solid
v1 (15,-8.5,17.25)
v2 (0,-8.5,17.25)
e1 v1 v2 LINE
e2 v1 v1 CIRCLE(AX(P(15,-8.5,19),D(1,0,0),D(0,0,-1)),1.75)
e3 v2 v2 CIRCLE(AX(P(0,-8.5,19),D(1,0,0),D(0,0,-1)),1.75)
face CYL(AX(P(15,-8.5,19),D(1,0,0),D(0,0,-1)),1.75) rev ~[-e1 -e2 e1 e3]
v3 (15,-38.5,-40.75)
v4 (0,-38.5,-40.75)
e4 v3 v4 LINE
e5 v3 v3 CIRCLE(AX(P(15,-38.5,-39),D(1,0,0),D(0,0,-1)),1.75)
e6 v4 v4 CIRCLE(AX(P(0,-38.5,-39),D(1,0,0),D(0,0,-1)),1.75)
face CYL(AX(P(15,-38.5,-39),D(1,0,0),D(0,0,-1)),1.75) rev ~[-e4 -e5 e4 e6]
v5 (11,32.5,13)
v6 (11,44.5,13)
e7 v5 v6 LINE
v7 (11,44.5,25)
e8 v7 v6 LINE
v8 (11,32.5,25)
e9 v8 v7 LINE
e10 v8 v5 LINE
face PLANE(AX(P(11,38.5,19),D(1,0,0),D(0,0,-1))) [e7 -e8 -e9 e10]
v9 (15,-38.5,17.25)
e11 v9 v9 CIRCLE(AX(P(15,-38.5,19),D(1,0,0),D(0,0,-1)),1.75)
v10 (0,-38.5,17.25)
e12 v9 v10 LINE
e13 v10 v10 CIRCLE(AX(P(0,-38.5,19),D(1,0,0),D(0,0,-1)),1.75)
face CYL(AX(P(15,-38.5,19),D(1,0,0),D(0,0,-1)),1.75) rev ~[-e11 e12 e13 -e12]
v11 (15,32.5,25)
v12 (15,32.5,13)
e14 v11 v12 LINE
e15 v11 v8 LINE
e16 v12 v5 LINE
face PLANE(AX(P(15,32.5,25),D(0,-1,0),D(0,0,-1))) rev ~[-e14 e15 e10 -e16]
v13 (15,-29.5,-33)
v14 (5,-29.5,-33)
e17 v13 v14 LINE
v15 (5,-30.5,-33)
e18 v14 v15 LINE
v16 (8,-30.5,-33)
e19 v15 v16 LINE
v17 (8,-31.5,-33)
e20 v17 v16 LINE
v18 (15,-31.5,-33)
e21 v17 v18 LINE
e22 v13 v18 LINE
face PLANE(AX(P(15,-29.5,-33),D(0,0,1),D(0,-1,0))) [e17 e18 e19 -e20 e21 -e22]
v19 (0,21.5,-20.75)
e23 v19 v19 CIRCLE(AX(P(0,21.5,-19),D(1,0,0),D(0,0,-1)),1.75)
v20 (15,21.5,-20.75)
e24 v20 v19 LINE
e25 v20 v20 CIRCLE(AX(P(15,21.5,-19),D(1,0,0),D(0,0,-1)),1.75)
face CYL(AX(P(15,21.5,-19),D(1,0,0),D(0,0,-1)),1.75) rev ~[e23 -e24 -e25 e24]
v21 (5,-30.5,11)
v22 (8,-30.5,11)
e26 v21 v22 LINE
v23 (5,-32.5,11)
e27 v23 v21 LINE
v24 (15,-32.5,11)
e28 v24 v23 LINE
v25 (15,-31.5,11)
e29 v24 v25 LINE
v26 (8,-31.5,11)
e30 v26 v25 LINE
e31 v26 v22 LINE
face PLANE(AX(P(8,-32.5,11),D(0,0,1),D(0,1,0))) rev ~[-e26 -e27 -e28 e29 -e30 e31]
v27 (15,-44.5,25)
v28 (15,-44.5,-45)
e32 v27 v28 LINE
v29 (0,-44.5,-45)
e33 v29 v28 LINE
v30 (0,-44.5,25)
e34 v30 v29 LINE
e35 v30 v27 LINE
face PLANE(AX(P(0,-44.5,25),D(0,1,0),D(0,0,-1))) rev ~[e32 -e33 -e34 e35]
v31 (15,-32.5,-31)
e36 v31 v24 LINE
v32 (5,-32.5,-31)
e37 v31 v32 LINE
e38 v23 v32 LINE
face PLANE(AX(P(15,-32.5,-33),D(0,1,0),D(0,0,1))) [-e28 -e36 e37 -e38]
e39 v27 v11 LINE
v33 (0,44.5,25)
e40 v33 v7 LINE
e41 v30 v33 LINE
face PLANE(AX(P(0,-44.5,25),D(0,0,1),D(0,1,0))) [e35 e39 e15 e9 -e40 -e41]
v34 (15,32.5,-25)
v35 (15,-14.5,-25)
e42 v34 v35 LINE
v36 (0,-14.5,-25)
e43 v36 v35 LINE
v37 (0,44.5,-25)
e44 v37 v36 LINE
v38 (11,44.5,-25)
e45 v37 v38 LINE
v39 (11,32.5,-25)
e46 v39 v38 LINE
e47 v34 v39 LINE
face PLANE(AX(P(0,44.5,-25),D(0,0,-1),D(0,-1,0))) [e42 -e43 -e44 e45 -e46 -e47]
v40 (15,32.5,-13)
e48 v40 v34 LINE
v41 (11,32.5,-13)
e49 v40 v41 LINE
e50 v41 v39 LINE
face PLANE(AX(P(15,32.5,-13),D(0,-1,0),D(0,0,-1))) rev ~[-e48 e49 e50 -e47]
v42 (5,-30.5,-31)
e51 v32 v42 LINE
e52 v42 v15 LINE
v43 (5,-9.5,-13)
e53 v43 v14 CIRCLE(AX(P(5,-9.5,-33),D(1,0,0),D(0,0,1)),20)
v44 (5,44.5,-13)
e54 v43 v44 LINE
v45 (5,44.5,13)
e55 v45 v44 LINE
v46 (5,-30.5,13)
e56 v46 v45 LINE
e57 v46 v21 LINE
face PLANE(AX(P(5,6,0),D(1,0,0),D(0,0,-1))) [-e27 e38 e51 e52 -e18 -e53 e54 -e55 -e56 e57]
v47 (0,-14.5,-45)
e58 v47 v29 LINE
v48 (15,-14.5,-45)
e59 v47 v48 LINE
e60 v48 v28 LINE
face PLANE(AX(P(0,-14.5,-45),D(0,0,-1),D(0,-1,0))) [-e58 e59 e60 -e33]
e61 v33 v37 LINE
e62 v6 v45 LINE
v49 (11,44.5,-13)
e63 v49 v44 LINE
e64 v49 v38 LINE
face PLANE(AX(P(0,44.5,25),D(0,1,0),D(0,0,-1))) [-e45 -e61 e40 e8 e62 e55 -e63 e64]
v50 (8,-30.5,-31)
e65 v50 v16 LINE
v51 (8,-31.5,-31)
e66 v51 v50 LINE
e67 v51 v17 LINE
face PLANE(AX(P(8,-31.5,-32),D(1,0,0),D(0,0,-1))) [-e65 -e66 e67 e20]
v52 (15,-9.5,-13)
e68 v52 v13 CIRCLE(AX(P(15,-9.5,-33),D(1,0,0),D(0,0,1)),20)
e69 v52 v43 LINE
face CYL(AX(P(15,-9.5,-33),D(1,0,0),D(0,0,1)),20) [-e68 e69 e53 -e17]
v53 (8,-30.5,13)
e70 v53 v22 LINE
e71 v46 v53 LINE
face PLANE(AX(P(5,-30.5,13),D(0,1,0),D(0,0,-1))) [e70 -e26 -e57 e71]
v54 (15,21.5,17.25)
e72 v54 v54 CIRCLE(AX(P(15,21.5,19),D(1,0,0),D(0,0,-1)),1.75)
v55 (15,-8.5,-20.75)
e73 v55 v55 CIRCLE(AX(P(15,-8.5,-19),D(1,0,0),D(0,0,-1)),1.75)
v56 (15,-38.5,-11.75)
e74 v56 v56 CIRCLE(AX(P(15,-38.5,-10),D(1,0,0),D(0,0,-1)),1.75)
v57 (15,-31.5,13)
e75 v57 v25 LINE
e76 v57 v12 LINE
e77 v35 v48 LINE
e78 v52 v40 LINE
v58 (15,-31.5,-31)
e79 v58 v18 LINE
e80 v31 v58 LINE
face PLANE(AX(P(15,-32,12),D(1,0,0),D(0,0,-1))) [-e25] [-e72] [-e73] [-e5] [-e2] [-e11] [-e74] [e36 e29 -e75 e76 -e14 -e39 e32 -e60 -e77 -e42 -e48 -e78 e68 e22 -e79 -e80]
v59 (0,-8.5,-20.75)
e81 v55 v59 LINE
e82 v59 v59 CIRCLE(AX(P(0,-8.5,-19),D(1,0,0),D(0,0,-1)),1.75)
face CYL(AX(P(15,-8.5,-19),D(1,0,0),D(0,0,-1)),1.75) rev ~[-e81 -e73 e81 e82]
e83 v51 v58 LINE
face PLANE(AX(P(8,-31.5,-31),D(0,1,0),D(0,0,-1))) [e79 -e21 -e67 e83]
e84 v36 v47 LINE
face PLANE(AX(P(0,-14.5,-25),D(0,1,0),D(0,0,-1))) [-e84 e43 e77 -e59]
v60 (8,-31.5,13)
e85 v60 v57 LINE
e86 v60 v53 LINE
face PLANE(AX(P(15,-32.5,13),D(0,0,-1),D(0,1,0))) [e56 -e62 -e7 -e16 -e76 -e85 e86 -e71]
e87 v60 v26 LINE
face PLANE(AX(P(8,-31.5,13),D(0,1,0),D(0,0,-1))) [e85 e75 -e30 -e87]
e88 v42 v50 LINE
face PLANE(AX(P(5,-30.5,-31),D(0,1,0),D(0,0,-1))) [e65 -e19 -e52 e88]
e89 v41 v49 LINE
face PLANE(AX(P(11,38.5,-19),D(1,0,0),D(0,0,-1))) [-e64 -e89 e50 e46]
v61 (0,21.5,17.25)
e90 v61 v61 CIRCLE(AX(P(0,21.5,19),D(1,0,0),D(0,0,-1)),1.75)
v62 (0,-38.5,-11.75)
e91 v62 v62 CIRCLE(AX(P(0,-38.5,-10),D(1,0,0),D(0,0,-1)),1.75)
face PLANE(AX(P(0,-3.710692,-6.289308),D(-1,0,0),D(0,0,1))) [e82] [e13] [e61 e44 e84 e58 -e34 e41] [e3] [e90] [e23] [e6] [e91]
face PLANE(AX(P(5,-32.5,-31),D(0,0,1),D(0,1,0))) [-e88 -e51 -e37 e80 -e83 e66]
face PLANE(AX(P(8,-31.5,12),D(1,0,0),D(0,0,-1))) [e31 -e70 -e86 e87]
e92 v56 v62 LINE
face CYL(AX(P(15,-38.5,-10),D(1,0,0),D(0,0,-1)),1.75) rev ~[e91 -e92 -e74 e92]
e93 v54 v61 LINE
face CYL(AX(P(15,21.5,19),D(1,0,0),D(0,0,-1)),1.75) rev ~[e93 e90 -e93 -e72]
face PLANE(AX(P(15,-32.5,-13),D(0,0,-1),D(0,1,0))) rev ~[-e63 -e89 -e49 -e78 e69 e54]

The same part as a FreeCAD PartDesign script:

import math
import FreeCAD as App
import Part
import Sketcher
from FreeCAD import Vector

doc = App.newDocument("Part")
body = doc.addObject("PartDesign::Body", "Body")

sketch1 = body.newObject("Sketcher::SketchObject", "Sketch")
sketch1.AttachmentSupport = (doc.getObject("YZ_Plane"), [""])
sketch1.MapMode = "FlatFace"
sketch1.addGeometry(Part.LineSegment(Vector(-14, -25, 0), Vector(44, -25, 0)), False)
sketch1.addGeometry(Part.LineSegment(Vector(44, -25, 0), Vector(44, 25, 0)), False)
sketch1.addGeometry(Part.LineSegment(Vector(44, 25, 0), Vector(-44, 25, 0)), False)
sketch1.addGeometry(Part.LineSegment(Vector(-44, 25, 0), Vector(-44, -45, 0)), False)
sketch1.addGeometry(Part.LineSegment(Vector(-44, -45, 0), Vector(-14, -45, 0)), False)
sketch1.addGeometry(Part.LineSegment(Vector(-14, -45, 0), Vector(-14, -25, 0)), False)
sketch1.addConstraint(Sketcher.Constraint("Coincident", 0, 2, 1, 1))
sketch1.addConstraint(Sketcher.Constraint("Coincident", 1, 2, 2, 1))
sketch1.addConstraint(Sketcher.Constraint("Coincident", 2, 2, 3, 1))
sketch1.addConstraint(Sketcher.Constraint("Coincident", 3, 2, 4, 1))
sketch1.addConstraint(Sketcher.Constraint("Coincident", 4, 2, 5, 1))
sketch1.addConstraint(Sketcher.Constraint("Coincident", 5, 2, 0, 1))
sketch1.addConstraint(Sketcher.Constraint("Horizontal", 0))
sketch1.addConstraint(Sketcher.Constraint("Vertical", 1))
sketch1.addConstraint(Sketcher.Constraint("Horizontal", 2))
sketch1.addConstraint(Sketcher.Constraint("Vertical", 3))
sketch1.addConstraint(Sketcher.Constraint("Horizontal", 4))
sketch1.addConstraint(Sketcher.Constraint("Vertical", 5))
sketch1.addConstraint(Sketcher.Constraint("Symmetric", 0, 2, 2, 2, -1, 1))
sketch1.addConstraint(Sketcher.Constraint("DistanceX", 0, 1, 0, 2, 59.0))
sketch1.addConstraint(Sketcher.Constraint("DistanceX", 2, 2, 2, 1, 89.0))
sketch1.addConstraint(Sketcher.Constraint("DistanceY", 1, 1, 1, 2, 50.0))
sketch1.addConstraint(Sketcher.Constraint("DistanceY", 3, 2, 3, 1, 70.0))
pad1 = body.newObject("PartDesign::Pad", "Pad")
pad1.Profile = sketch1
pad1.Length = 15

sketch2 = body.newObject("Sketcher::SketchObject", "Sketch001")
sketch2.AttachmentSupport = (doc.getObject("YZ_Plane"), [""])
sketch2.MapMode = "FlatFace"
sketch2.AttachmentOffset = App.Placement(Vector(0, 0, 15), App.Rotation())
sketch2.addGeometry(Part.LineSegment(Vector(44, 13, 0), Vector(-32, 13, 0)), False)
sketch2.addGeometry(Part.LineSegment(Vector(-32, 13, 0), Vector(-32, -13, 0)), False)
sketch2.addGeometry(Part.LineSegment(Vector(-32, -13, 0), Vector(44, -13, 0)), False)
sketch2.addGeometry(Part.LineSegment(Vector(44, -13, 0), Vector(44, 13, 0)), False)
sketch2.addConstraint(Sketcher.Constraint("Coincident", 0, 2, 1, 1))
sketch2.addConstraint(Sketcher.Constraint("Coincident", 1, 2, 2, 1))
sketch2.addConstraint(Sketcher.Constraint("Coincident", 2, 2, 3, 1))
sketch2.addConstraint(Sketcher.Constraint("Coincident", 3, 2, 0, 1))
sketch2.addConstraint(Sketcher.Constraint("Horizontal", 0))
sketch2.addConstraint(Sketcher.Constraint("Vertical", 1))
sketch2.addConstraint(Sketcher.Constraint("Horizontal", 2))
sketch2.addConstraint(Sketcher.Constraint("Vertical", 3))
sketch2.addConstraint(Sketcher.Constraint("DistanceX", 0, 2, 0, 1, 77.0))
sketch2.addConstraint(Sketcher.Constraint("DistanceY", 1, 2, 1, 1, 26.0))
sketch2.addConstraint(Sketcher.Constraint("DistanceY", -1, 1, 0, 2, 13.0))
sketch2.addConstraint(Sketcher.Constraint("DistanceX", 0, 2, -1, 1, 32.5))
pocket1 = body.newObject("PartDesign::Pocket", "Pocket")
pocket1.Profile = sketch2
pocket1.Length = 10

sketch3 = body.newObject("Sketcher::SketchObject", "Sketch002")
sketch3.AttachmentSupport = (doc.getObject("YZ_Plane"), [""])
sketch3.MapMode = "FlatFace"
sketch3.AttachmentOffset = App.Placement(Vector(0, 0, 15), App.Rotation())
sketch3.addGeometry(Part.LineSegment(Vector(-9.5, -13, 0), Vector(-32.5, -13, 0)), False)
sketch3.addGeometry(Part.LineSegment(Vector(-32.5, -13, 0), Vector(-32.5, -33, 0)), False)
sketch3.addGeometry(Part.LineSegment(Vector(-32.5, -33, 0), Vector(-29.5, -33, 0)), False)
sketch3.addGeometry(Part.ArcOfCircle(Part.Circle(Vector(-9.5, -33, 0), Vector(0, 0, 1), 20), math.radians(90), math.radians(180)), False)
sketch3.addConstraint(Sketcher.Constraint("Coincident", 0, 2, 1, 1))
sketch3.addConstraint(Sketcher.Constraint("Coincident", 1, 2, 2, 1))
sketch3.addConstraint(Sketcher.Constraint("Coincident", 2, 2, 3, 2))
sketch3.addConstraint(Sketcher.Constraint("Tangent", 3, 1, 0, 1))
sketch3.addConstraint(Sketcher.Constraint("Horizontal", 0))
sketch3.addConstraint(Sketcher.Constraint("Vertical", 1))
sketch3.addConstraint(Sketcher.Constraint("Horizontal", 2))
sketch3.addConstraint(Sketcher.Constraint("Horizontal", 3, 3, 1, 2))
sketch3.addConstraint(Sketcher.Constraint("Radius", 3, 20.0))
sketch3.addConstraint(Sketcher.Constraint("DistanceX", 0, 2, 0, 1, 23.0))
sketch3.addConstraint(Sketcher.Constraint("DistanceY", 3, 3, -1, 1, 33.0))
sketch3.addConstraint(Sketcher.Constraint("DistanceX", 3, 3, -1, 1, 9.5))
pocket2 = body.newObject("PartDesign::Pocket", "Pocket001")
pocket2.Profile = sketch3
pocket2.Length = 10

sketch4 = body.newObject("Sketcher::SketchObject", "Sketch003")
sketch4.AttachmentSupport = (doc.getObject("YZ_Plane"), [""])
sketch4.MapMode = "FlatFace"
sketch4.AttachmentOffset = App.Placement(Vector(0, 0, 15), App.Rotation())
sketch4.addGeometry(Part.LineSegment(Vector(44, 25, 0), Vector(32, 25, 0)), False)
sketch4.addGeometry(Part.LineSegment(Vector(32, 25, 0), Vector(32, 13, 0)), False)
sketch4.addGeometry(Part.LineSegment(Vector(32, 13, 0), Vector(44, 13, 0)), False)
sketch4.addGeometry(Part.LineSegment(Vector(44, 13, 0), Vector(44, 25, 0)), False)
sketch4.addGeometry(Part.LineSegment(Vector(44, -13, 0), Vector(32, -13, 0)), False)
sketch4.addGeometry(Part.LineSegment(Vector(32, -13, 0), Vector(32, -25, 0)), False)
sketch4.addGeometry(Part.LineSegment(Vector(32, -25, 0), Vector(44, -25, 0)), False)
sketch4.addGeometry(Part.LineSegment(Vector(44, -25, 0), Vector(44, -13, 0)), False)
sketch4.addConstraint(Sketcher.Constraint("Coincident", 0, 2, 1, 1))
sketch4.addConstraint(Sketcher.Constraint("Coincident", 1, 2, 2, 1))
sketch4.addConstraint(Sketcher.Constraint("Coincident", 2, 2, 3, 1))
sketch4.addConstraint(Sketcher.Constraint("Coincident", 3, 2, 0, 1))
sketch4.addConstraint(Sketcher.Constraint("Coincident", 4, 2, 5, 1))
sketch4.addConstraint(Sketcher.Constraint("Coincident", 5, 2, 6, 1))
sketch4.addConstraint(Sketcher.Constraint("Coincident", 6, 2, 7, 1))
sketch4.addConstraint(Sketcher.Constraint("Coincident", 7, 2, 4, 1))
sketch4.addConstraint(Sketcher.Constraint("Horizontal", 0))
sketch4.addConstraint(Sketcher.Constraint("Vertical", 1))
sketch4.addConstraint(Sketcher.Constraint("Horizontal", 2))
sketch4.addConstraint(Sketcher.Constraint("Vertical", 3))
sketch4.addConstraint(Sketcher.Constraint("Horizontal", 4))
sketch4.addConstraint(Sketcher.Constraint("Vertical", 5))
sketch4.addConstraint(Sketcher.Constraint("Horizontal", 6))
sketch4.addConstraint(Sketcher.Constraint("Vertical", 7))
sketch4.addConstraint(Sketcher.Constraint("Symmetric", 1, 2, 4, 2, -1))
sketch4.addConstraint(Sketcher.Constraint("Symmetric", 3, 2, 6, 2, -1))
sketch4.addConstraint(Sketcher.Constraint("Equal", 6, 1))
sketch4.addConstraint(Sketcher.Constraint("DistanceX", 0, 2, 0, 1, 12.0))
sketch4.addConstraint(Sketcher.Constraint("DistanceY", -1, 1, 0, 2, 25.0))
sketch4.addConstraint(Sketcher.Constraint("DistanceX", -1, 1, 0, 2, 32.5))
pocket3 = body.newObject("PartDesign::Pocket", "Pocket002")
pocket3.Profile = sketch4
pocket3.Length = 4

sketch5 = body.newObject("Sketcher::SketchObject", "Sketch004")
sketch5.AttachmentSupport = (doc.getObject("YZ_Plane"), [""])
sketch5.MapMode = "FlatFace"
sketch5.AttachmentOffset = App.Placement(Vector(0, 0, 5), App.Rotation())
sketch5.addGeometry(Part.LineSegment(Vector(-30.5, 13, 0), Vector(-32.5, 13, 0)), False)
sketch5.addGeometry(Part.LineSegment(Vector(-32.5, 13, 0), Vector(-32.5, 11, 0)), False)
sketch5.addGeometry(Part.LineSegment(Vector(-32.5, 11, 0), Vector(-30.5, 11, 0)), False)
sketch5.addGeometry(Part.LineSegment(Vector(-30.5, 11, 0), Vector(-30.5, 13, 0)), False)
sketch5.addGeometry(Part.LineSegment(Vector(-30.5, -31, 0), Vector(-32.5, -31, 0)), False)
sketch5.addGeometry(Part.LineSegment(Vector(-32.5, -31, 0), Vector(-32.5, -33, 0)), False)
sketch5.addGeometry(Part.LineSegment(Vector(-32.5, -33, 0), Vector(-30.5, -33, 0)), False)
sketch5.addGeometry(Part.LineSegment(Vector(-30.5, -33, 0), Vector(-30.5, -31, 0)), False)
sketch5.addConstraint(Sketcher.Constraint("Coincident", 0, 2, 1, 1))
sketch5.addConstraint(Sketcher.Constraint("Coincident", 1, 2, 2, 1))
sketch5.addConstraint(Sketcher.Constraint("Coincident", 2, 2, 3, 1))
sketch5.addConstraint(Sketcher.Constraint("Coincident", 3, 2, 0, 1))
sketch5.addConstraint(Sketcher.Constraint("Coincident", 4, 2, 5, 1))
sketch5.addConstraint(Sketcher.Constraint("Coincident", 5, 2, 6, 1))
sketch5.addConstraint(Sketcher.Constraint("Coincident", 6, 2, 7, 1))
sketch5.addConstraint(Sketcher.Constraint("Coincident", 7, 2, 4, 1))
sketch5.addConstraint(Sketcher.Constraint("Horizontal", 0))
sketch5.addConstraint(Sketcher.Constraint("Vertical", 1))
sketch5.addConstraint(Sketcher.Constraint("Horizontal", 2))
sketch5.addConstraint(Sketcher.Constraint("Vertical", 3))
sketch5.addConstraint(Sketcher.Constraint("Horizontal", 4))
sketch5.addConstraint(Sketcher.Constraint("Vertical", 5))
sketch5.addConstraint(Sketcher.Constraint("Horizontal", 6))
sketch5.addConstraint(Sketcher.Constraint("Vertical", 7))
sketch5.addConstraint(Sketcher.Constraint("Vertical", 1, 2, 4, 2))
sketch5.addConstraint(Sketcher.Constraint("Vertical", 3, 2, 6, 2))
sketch5.addConstraint(Sketcher.Constraint("Equal", 6, 1))
sketch5.addConstraint(Sketcher.Constraint("Equal", 3, 5))
sketch5.addConstraint(Sketcher.Constraint("DistanceX", 0, 2, 0, 1, 2.0))
sketch5.addConstraint(Sketcher.Constraint("DistanceY", -1, 1, 0, 2, 13.0))
sketch5.addConstraint(Sketcher.Constraint("DistanceY", 4, 2, -1, 1, 31.0))
sketch5.addConstraint(Sketcher.Constraint("DistanceX", 0, 2, -1, 1, 32.5))
pad2 = body.newObject("PartDesign::Pad", "Pad001")
pad2.Profile = sketch5
pad2.Length = 3

sketch6 = body.newObject("Sketcher::SketchObject", "Sketch005")
sketch6.AttachmentSupport = (doc.getObject("YZ_Plane"), [""])
sketch6.MapMode = "FlatFace"
sketch6.AttachmentOffset = App.Placement(Vector(0, 0, 8), App.Rotation())
sketch6.addGeometry(Part.LineSegment(Vector(-31.5, 13, 0), Vector(-32.5, 13, 0)), False)
sketch6.addGeometry(Part.LineSegment(Vector(-32.5, 13, 0), Vector(-32.5, 11, 0)), False)
sketch6.addGeometry(Part.LineSegment(Vector(-32.5, 11, 0), Vector(-31.5, 11, 0)), False)
sketch6.addGeometry(Part.LineSegment(Vector(-31.5, 11, 0), Vector(-31.5, 13, 0)), False)
sketch6.addGeometry(Part.LineSegment(Vector(-31.5, -31, 0), Vector(-32.5, -31, 0)), False)
sketch6.addGeometry(Part.LineSegment(Vector(-32.5, -31, 0), Vector(-32.5, -33, 0)), False)
sketch6.addGeometry(Part.LineSegment(Vector(-32.5, -33, 0), Vector(-31.5, -33, 0)), False)
sketch6.addGeometry(Part.LineSegment(Vector(-31.5, -33, 0), Vector(-31.5, -31, 0)), False)
sketch6.addConstraint(Sketcher.Constraint("Coincident", 0, 2, 1, 1))
sketch6.addConstraint(Sketcher.Constraint("Coincident", 1, 2, 2, 1))
sketch6.addConstraint(Sketcher.Constraint("Coincident", 2, 2, 3, 1))
sketch6.addConstraint(Sketcher.Constraint("Coincident", 3, 2, 0, 1))
sketch6.addConstraint(Sketcher.Constraint("Coincident", 4, 2, 5, 1))
sketch6.addConstraint(Sketcher.Constraint("Coincident", 5, 2, 6, 1))
sketch6.addConstraint(Sketcher.Constraint("Coincident", 6, 2, 7, 1))
sketch6.addConstraint(Sketcher.Constraint("Coincident", 7, 2, 4, 1))
sketch6.addConstraint(Sketcher.Constraint("Horizontal", 0))
sketch6.addConstraint(Sketcher.Constraint("Vertical", 1))
sketch6.addConstraint(Sketcher.Constraint("Horizontal", 2))
sketch6.addConstraint(Sketcher.Constraint("Vertical", 3))
sketch6.addConstraint(Sketcher.Constraint("Horizontal", 4))
sketch6.addConstraint(Sketcher.Constraint("Vertical", 5))
sketch6.addConstraint(Sketcher.Constraint("Horizontal", 6))
sketch6.addConstraint(Sketcher.Constraint("Vertical", 7))
sketch6.addConstraint(Sketcher.Constraint("Vertical", 1, 2, 4, 2))
sketch6.addConstraint(Sketcher.Constraint("Vertical", 3, 2, 6, 2))
sketch6.addConstraint(Sketcher.Constraint("Equal", 3, 5))
sketch6.addConstraint(Sketcher.Constraint("DistanceX", 0, 2, 0, 1, 1.0))
sketch6.addConstraint(Sketcher.Constraint("DistanceY", 1, 2, 1, 1, 2.0))
sketch6.addConstraint(Sketcher.Constraint("DistanceY", -1, 1, 0, 2, 13.0))
sketch6.addConstraint(Sketcher.Constraint("DistanceY", 4, 2, -1, 1, 31.0))
sketch6.addConstraint(Sketcher.Constraint("DistanceX", 0, 2, -1, 1, 32.5))
pad3 = body.newObject("PartDesign::Pad", "Pad002")
pad3.Profile = sketch6
pad3.Length = 7

sketch7 = body.newObject("Sketcher::SketchObject", "Sketch006")
sketch7.AttachmentSupport = (doc.getObject("YZ_Plane"), [""])
sketch7.MapMode = "FlatFace"
sketch7.AttachmentOffset = App.Placement(Vector(0, 0, 15), App.Rotation())
sketch7.addGeometry(Part.Circle(Vector(21.5, 19, 0), Vector(0, 0, 1), 1.8), False)
sketch7.addGeometry(Part.Circle(Vector(-8.5, 19, 0), Vector(0, 0, 1), 1.8), False)
sketch7.addGeometry(Part.Circle(Vector(-38.5, 19, 0), Vector(0, 0, 1), 1.8), False)
sketch7.addGeometry(Part.Circle(Vector(-38.5, -10, 0), Vector(0, 0, 1), 1.8), False)
sketch7.addGeometry(Part.Circle(Vector(-38.5, -39, 0), Vector(0, 0, 1), 1.8), False)
sketch7.addGeometry(Part.Circle(Vector(-8.5, -19, 0), Vector(0, 0, 1), 1.8), False)
sketch7.addGeometry(Part.Circle(Vector(21.5, -19, 0), Vector(0, 0, 1), 1.8), False)
sketch7.addConstraint(Sketcher.Constraint("Equal", 0, 1))
sketch7.addConstraint(Sketcher.Constraint("Equal", 1, 2))
sketch7.addConstraint(Sketcher.Constraint("Equal", 2, 3))
sketch7.addConstraint(Sketcher.Constraint("Equal", 3, 4))
sketch7.addConstraint(Sketcher.Constraint("Equal", 4, 5))
sketch7.addConstraint(Sketcher.Constraint("Equal", 5, 6))
sketch7.addConstraint(Sketcher.Constraint("Symmetric", 1, 3, 5, 3, -1))
sketch7.addConstraint(Sketcher.Constraint("Symmetric", 0, 3, 6, 3, -1))
sketch7.addConstraint(Sketcher.Constraint("Horizontal", 0, 3, 1, 3))
sketch7.addConstraint(Sketcher.Constraint("Horizontal", 1, 3, 2, 3))
sketch7.addConstraint(Sketcher.Constraint("Vertical", 2, 3, 3, 3))
sketch7.addConstraint(Sketcher.Constraint("Vertical", 3, 3, 4, 3))
sketch7.addConstraint(Sketcher.Constraint("Diameter", 0, 3.5))
sketch7.addConstraint(Sketcher.Constraint("DistanceY", -1, 1, 0, 3, 19.0))
sketch7.addConstraint(Sketcher.Constraint("DistanceY", 3, 3, -1, 1, 10.0))
sketch7.addConstraint(Sketcher.Constraint("DistanceY", 4, 3, -1, 1, 39.0))
sketch7.addConstraint(Sketcher.Constraint("DistanceX", 1, 3, 0, 3, 30.0))
sketch7.addConstraint(Sketcher.Constraint("DistanceX", 2, 3, 1, 3, 30.0))
sketch7.addConstraint(Sketcher.Constraint("DistanceX", -1, 1, 0, 3, 21.5))
pocket4 = body.newObject("PartDesign::Pocket", "Pocket003")
pocket4.Profile = sketch7
pocket4.Type = "ThroughAll"

doc.recompute()
